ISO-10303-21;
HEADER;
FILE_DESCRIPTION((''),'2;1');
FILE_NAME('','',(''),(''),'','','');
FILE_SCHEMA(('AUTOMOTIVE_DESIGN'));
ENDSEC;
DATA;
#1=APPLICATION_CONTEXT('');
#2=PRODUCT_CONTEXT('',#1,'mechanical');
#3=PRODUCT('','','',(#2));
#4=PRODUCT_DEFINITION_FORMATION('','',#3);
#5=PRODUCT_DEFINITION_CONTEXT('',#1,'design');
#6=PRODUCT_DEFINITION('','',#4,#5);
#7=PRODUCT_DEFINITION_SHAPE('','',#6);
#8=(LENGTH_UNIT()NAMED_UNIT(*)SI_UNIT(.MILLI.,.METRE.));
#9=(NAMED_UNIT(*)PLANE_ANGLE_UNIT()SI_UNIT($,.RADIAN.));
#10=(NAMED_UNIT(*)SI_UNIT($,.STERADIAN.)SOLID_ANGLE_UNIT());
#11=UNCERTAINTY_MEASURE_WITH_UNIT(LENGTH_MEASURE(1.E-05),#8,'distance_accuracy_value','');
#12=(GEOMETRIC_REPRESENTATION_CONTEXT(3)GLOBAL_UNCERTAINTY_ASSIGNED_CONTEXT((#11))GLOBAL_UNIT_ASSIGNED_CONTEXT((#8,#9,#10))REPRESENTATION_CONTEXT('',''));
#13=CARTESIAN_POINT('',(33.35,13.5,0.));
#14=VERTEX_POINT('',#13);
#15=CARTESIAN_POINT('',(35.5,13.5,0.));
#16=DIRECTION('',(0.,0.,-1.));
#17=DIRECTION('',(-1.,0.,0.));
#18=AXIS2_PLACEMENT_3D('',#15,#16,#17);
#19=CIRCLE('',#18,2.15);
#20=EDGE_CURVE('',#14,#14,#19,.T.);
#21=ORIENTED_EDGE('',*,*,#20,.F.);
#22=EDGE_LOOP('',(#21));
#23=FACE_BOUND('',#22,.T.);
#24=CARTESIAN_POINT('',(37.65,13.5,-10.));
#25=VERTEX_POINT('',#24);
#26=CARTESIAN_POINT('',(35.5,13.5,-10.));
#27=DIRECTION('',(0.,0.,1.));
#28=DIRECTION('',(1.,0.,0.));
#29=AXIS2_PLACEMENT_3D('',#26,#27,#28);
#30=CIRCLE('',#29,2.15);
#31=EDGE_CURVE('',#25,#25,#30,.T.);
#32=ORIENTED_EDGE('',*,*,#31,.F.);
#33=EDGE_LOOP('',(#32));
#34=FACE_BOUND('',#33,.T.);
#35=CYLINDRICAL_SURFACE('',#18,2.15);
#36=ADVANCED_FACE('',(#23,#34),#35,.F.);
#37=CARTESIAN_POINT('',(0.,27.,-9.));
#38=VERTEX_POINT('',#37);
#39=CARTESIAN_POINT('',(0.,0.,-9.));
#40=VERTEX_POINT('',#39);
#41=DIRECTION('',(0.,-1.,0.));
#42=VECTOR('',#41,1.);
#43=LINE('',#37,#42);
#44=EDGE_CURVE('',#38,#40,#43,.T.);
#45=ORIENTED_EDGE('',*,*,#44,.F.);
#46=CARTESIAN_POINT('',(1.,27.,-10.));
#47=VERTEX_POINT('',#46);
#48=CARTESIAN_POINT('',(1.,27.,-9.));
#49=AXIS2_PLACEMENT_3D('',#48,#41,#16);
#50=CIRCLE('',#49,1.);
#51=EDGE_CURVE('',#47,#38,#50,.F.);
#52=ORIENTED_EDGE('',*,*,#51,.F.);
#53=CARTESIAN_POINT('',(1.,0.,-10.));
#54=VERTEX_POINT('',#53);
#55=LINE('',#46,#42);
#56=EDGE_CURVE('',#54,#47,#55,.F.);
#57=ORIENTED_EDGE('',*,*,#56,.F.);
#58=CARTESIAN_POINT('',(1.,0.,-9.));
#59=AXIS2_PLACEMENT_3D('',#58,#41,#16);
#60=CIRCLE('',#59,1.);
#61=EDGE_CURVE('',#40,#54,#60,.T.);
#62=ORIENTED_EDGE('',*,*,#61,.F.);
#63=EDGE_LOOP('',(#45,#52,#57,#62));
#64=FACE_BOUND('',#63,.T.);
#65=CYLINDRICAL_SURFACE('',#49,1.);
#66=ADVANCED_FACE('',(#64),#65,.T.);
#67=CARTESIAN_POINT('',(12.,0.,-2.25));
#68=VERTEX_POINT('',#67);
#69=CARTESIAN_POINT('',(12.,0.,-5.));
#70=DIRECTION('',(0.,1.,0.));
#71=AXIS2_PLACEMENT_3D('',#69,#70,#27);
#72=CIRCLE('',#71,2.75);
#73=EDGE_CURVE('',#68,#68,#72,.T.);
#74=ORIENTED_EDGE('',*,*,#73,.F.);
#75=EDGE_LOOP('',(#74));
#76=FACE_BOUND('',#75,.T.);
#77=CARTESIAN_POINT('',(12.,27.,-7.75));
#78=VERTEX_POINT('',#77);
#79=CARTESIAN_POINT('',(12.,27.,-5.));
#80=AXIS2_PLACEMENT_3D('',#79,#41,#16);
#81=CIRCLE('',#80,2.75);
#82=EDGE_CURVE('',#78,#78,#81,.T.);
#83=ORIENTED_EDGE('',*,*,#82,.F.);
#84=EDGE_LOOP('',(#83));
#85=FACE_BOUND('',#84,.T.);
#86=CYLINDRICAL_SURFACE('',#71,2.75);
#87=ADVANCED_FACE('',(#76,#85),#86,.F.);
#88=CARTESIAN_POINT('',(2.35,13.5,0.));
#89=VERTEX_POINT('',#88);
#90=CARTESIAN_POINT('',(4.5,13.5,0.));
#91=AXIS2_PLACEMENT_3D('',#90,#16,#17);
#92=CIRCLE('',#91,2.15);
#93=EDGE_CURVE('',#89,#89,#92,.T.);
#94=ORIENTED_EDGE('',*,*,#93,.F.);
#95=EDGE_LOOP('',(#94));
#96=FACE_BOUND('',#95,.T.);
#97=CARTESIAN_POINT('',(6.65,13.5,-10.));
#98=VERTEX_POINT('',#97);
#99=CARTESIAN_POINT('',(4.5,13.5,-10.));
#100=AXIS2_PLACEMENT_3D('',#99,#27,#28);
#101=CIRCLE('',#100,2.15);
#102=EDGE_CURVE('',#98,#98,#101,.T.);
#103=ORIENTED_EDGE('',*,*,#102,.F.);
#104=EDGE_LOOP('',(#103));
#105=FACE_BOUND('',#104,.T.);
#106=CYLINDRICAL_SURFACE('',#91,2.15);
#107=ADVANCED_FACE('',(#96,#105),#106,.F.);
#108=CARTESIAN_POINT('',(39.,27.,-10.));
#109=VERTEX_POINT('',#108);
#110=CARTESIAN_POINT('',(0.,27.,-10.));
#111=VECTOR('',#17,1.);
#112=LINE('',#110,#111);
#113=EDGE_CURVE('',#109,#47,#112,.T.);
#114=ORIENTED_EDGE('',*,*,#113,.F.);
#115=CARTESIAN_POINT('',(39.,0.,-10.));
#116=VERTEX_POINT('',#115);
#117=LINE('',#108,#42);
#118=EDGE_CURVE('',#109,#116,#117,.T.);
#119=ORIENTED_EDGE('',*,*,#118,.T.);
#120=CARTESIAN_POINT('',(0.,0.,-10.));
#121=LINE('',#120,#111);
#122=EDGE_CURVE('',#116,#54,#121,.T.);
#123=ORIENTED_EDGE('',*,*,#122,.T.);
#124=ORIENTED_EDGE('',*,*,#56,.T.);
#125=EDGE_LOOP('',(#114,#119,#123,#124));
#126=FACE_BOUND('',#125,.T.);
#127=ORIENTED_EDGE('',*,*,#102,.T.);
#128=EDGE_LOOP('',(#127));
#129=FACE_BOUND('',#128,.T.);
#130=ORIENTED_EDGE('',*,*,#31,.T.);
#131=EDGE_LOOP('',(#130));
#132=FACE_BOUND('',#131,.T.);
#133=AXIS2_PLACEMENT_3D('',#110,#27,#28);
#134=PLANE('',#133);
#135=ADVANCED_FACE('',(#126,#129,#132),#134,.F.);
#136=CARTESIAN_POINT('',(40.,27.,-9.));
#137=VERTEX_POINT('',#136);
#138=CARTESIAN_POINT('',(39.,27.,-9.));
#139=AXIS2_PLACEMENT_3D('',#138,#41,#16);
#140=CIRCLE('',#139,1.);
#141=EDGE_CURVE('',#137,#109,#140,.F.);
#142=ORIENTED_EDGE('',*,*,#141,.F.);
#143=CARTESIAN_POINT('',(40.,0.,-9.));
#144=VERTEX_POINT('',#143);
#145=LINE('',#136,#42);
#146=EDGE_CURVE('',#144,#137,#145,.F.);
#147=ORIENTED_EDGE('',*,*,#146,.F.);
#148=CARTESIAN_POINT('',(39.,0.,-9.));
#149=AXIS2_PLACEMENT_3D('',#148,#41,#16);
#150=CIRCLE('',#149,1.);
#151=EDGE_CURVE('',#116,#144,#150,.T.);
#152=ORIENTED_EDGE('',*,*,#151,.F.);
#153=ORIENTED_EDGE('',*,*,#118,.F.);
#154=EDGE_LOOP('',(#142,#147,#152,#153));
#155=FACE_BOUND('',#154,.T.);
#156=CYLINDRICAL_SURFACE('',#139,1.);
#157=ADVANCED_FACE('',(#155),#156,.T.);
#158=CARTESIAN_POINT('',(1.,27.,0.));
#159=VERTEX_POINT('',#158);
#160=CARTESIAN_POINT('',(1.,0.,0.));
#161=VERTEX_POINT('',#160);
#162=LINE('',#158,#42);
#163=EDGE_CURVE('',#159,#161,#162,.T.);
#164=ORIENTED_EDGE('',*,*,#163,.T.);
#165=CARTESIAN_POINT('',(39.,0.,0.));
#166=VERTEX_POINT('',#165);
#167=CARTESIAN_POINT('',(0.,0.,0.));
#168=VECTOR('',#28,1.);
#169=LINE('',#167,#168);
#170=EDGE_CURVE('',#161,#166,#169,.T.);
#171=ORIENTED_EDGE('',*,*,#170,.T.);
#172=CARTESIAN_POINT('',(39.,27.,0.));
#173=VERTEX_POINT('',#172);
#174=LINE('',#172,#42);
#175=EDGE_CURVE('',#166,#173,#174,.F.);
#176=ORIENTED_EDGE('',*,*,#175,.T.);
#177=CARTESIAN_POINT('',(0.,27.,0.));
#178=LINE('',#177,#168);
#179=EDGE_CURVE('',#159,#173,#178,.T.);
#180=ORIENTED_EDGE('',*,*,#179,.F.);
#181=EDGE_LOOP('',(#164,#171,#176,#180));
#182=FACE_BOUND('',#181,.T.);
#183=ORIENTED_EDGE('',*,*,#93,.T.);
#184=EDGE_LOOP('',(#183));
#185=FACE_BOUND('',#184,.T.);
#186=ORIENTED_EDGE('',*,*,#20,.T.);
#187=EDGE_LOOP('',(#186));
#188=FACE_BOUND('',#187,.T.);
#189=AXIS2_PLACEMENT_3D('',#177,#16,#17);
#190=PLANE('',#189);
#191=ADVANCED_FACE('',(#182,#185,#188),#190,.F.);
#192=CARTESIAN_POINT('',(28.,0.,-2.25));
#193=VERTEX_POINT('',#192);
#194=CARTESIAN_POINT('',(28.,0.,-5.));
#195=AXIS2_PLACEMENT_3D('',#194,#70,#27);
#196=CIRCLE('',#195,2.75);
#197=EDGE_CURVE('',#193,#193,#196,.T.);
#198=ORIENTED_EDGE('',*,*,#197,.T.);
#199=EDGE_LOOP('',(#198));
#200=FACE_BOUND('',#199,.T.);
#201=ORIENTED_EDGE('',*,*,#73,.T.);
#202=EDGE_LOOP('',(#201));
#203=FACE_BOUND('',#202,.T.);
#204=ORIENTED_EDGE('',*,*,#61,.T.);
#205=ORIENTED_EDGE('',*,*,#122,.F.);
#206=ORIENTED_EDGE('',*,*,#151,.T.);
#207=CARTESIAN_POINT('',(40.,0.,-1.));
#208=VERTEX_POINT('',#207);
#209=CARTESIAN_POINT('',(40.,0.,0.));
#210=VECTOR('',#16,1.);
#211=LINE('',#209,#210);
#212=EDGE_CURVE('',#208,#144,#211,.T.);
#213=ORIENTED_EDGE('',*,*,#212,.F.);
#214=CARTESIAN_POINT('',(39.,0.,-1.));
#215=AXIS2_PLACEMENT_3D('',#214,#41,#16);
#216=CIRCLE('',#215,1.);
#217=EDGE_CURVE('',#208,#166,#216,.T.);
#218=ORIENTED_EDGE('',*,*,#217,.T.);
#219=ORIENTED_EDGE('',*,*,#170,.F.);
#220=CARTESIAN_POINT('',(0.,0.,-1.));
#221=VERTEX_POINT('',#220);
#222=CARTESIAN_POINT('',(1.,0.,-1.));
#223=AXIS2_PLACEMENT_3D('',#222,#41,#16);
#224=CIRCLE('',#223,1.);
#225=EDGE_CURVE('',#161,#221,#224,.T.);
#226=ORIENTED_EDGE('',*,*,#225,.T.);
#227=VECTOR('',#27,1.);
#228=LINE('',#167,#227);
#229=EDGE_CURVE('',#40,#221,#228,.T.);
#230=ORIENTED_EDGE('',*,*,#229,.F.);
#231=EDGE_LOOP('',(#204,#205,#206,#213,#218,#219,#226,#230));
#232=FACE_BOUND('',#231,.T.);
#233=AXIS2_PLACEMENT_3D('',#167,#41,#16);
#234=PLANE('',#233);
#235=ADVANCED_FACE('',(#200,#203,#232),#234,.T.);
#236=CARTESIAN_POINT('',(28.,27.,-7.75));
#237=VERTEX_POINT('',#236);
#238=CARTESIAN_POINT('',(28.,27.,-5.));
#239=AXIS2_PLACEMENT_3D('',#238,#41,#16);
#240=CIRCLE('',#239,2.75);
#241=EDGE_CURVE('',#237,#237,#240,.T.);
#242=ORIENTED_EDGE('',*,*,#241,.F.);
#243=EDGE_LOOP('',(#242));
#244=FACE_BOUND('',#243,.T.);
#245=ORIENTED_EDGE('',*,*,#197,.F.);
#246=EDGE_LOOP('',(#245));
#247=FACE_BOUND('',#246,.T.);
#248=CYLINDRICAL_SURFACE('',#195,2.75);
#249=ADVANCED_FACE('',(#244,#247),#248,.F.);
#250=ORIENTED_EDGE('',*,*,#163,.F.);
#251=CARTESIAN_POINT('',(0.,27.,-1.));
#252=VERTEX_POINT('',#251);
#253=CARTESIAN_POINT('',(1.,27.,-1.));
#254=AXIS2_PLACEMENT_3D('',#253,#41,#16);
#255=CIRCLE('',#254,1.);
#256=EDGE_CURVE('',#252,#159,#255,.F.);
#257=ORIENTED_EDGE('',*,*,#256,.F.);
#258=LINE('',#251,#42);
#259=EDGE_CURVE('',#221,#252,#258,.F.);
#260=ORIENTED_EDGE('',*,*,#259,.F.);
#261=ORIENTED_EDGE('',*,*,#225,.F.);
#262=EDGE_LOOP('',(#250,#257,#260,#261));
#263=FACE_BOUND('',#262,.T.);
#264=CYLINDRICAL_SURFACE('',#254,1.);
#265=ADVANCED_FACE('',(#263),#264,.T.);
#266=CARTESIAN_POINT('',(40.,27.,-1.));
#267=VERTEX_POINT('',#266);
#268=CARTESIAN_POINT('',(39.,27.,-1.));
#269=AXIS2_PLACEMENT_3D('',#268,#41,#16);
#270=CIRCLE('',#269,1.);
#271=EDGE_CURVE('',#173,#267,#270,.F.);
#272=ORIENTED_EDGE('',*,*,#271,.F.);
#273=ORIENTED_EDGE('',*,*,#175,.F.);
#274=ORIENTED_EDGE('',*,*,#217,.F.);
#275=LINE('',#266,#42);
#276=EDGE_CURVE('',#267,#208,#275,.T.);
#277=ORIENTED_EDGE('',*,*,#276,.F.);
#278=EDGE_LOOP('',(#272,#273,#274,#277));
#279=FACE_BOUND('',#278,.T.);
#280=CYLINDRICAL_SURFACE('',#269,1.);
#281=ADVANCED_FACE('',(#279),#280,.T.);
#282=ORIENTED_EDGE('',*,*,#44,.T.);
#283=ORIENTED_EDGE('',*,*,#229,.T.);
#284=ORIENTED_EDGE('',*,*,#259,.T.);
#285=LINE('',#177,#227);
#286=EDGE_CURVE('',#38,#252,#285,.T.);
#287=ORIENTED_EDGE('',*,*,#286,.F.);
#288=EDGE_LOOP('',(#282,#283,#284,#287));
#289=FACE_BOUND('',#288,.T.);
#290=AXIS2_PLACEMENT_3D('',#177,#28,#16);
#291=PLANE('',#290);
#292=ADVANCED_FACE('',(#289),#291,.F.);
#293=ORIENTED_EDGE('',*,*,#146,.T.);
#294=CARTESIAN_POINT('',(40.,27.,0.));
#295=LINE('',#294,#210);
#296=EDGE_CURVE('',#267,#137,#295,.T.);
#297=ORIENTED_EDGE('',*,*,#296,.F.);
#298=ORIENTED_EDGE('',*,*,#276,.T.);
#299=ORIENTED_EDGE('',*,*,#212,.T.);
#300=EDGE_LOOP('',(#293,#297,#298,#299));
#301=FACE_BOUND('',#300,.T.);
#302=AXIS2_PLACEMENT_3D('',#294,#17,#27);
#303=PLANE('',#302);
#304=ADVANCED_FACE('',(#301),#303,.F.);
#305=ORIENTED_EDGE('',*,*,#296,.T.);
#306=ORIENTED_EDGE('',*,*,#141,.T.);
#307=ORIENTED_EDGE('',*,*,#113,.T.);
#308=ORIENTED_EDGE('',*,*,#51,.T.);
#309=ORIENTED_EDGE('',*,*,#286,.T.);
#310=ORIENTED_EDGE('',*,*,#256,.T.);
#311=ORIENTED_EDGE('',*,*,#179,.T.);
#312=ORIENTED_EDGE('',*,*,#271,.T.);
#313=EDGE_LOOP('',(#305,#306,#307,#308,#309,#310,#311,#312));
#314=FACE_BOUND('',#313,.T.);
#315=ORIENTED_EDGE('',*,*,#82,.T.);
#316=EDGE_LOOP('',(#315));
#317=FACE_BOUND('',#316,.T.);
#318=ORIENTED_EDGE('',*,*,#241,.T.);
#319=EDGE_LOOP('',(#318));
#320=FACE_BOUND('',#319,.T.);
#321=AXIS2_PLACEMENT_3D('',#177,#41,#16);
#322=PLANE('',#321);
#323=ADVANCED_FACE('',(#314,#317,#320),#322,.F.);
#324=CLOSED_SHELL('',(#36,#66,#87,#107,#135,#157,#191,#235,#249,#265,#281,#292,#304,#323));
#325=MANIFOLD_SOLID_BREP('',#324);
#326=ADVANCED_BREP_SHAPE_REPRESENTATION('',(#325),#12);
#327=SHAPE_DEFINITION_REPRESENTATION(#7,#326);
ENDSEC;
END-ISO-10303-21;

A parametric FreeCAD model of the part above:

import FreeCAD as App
import Part
import Sketcher

V = App.Vector


def edges_at(feature, points):
    """Names of the edges that pass closest to the given points."""
    edges = feature.Shape.Edges
    near = lambda p: min(range(len(edges)), key=lambda i: edges[i].distToShape(Part.Vertex(*p))[0])
    return sorted({f"Edge{near(p) + 1}" for p in points})


def add_polygon(sketch, points):
    """Adds a closed chain of lines whose ends are joined by coincident constraints."""
    first, n = sketch.GeometryCount, len(points)
    for a, b in zip(points, points[1:] + points[:1]):
        sketch.addGeometry(Part.LineSegment(App.Vector(*a, 0), App.Vector(*b, 0)), False)
    for i in range(n):
        sketch.addConstraint(Sketcher.Constraint("Coincident", first + i, 2, first + (i + 1) % n, 1))

doc = App.newDocument("Part")
body = doc.addObject("PartDesign::Body", "Body")

sketch1 = body.newObject("Sketcher::SketchObject", "Sketch")
sketch1.AttachmentSupport = (doc.getObject("XZ_Plane"), [""])
sketch1.MapMode = "FlatFace"
add_polygon(sketch1, [(0, -10), (0, 0), (40, 0), (40, -10)])
sketch1.addConstraint([
    Sketcher.Constraint("Vertical", 0),
    Sketcher.Constraint("Horizontal", 1),
    Sketcher.Constraint("Vertical", 2),
    Sketcher.Constraint("Horizontal", 3),
    Sketcher.Constraint("Coincident", 0, 2, -1, 1),
    Sketcher.Constraint("DistanceX", 1, 1, 1, 2, 40.0),
    Sketcher.Constraint("DistanceY", 0, 1, 0, 2, 10.0),
])
pad1 = body.newObject("PartDesign::Pad", "Pad")
pad1.Profile = sketch1
pad1.Length = 27
pad1.Reversed = True

sketch2 = body.newObject("Sketcher::SketchObject", "Sketch001")
sketch2.AttachmentSupport = (doc.getObject("XY_Plane"), [""])
sketch2.MapMode = "FlatFace"
sketch2.AttachmentOffset = App.Placement(V(0, 0, -10), App.Rotation())
sketch2.addGeometry([
    Part.Circle(V(35.5, 13.5, 0), V(0, 0, 1), 2.15),
    Part.Circle(V(4.5, 13.5, 0), V(0, 0, 1), 2.15),
], False)
sketch2.addConstraint([
    Sketcher.Constraint("Equal", 0, 1),
    Sketcher.Constraint("Horizontal", 0, 3, 1, 3),
    Sketcher.Constraint("Diameter", 0, 4.3),
    Sketcher.Constraint("DistanceX", 1, 3, 0, 3, 31.0),
    Sketcher.Constraint("DistanceX", -1, 1, 0, 3, 35.5),
    Sketcher.Constraint("DistanceY", -1, 1, 0, 3, 13.5),
])
pocket1 = body.newObject("PartDesign::Pocket", "Pocket")
pocket1.Profile = sketch2
pocket1.Type = "ThroughAll"
pocket1.Midplane = True
doc.recompute()

fillet = body.newObject("PartDesign::Fillet", "Fillet")
fillet.Base = (pocket1, edges_at(pocket1, [
    (0, 13.5, -10),
    (40, 13.5, -10),
    (40, 13.5, 0),
    (0, 13.5, 0),
]))
fillet.Radius = 1

sketch3 = body.newObject("Sketcher::SketchObject", "Sketch002")
sketch3.AttachmentSupport = (doc.getObject("XZ_Plane"), [""])
sketch3.MapMode = "FlatFace"
sketch3.AttachmentOffset = App.Placement(V(0, 0, -27), App.Rotation())
sketch3.addGeometry([
    Part.Circle(V(12, -5, 0), V(0, 0, 1), 2.75),
    Part.Circle(V(28, -5, 0), V(0, 0, 1), 2.75),
], False)
sketch3.addConstraint([
    Sketcher.Constraint("Equal", 0, 1),
    Sketcher.Constraint("Horizontal", 0, 3, 1, 3),
    Sketcher.Constraint("Diameter", 0, 5.5),
    Sketcher.Constraint("DistanceX", -1, 1, 0, 3, 12.0),
    Sketcher.Constraint("DistanceY", 0, 3, -1, 1, 5.0),
    Sketcher.Constraint("DistanceX", -1, 1, 1, 3, 28.0),
])
pocket2 = body.newObject("PartDesign::Pocket", "Pocket001")
pocket2.Profile = sketch3
pocket2.Type = "ThroughAll"
pocket2.Midplane = True

doc.recompute()
